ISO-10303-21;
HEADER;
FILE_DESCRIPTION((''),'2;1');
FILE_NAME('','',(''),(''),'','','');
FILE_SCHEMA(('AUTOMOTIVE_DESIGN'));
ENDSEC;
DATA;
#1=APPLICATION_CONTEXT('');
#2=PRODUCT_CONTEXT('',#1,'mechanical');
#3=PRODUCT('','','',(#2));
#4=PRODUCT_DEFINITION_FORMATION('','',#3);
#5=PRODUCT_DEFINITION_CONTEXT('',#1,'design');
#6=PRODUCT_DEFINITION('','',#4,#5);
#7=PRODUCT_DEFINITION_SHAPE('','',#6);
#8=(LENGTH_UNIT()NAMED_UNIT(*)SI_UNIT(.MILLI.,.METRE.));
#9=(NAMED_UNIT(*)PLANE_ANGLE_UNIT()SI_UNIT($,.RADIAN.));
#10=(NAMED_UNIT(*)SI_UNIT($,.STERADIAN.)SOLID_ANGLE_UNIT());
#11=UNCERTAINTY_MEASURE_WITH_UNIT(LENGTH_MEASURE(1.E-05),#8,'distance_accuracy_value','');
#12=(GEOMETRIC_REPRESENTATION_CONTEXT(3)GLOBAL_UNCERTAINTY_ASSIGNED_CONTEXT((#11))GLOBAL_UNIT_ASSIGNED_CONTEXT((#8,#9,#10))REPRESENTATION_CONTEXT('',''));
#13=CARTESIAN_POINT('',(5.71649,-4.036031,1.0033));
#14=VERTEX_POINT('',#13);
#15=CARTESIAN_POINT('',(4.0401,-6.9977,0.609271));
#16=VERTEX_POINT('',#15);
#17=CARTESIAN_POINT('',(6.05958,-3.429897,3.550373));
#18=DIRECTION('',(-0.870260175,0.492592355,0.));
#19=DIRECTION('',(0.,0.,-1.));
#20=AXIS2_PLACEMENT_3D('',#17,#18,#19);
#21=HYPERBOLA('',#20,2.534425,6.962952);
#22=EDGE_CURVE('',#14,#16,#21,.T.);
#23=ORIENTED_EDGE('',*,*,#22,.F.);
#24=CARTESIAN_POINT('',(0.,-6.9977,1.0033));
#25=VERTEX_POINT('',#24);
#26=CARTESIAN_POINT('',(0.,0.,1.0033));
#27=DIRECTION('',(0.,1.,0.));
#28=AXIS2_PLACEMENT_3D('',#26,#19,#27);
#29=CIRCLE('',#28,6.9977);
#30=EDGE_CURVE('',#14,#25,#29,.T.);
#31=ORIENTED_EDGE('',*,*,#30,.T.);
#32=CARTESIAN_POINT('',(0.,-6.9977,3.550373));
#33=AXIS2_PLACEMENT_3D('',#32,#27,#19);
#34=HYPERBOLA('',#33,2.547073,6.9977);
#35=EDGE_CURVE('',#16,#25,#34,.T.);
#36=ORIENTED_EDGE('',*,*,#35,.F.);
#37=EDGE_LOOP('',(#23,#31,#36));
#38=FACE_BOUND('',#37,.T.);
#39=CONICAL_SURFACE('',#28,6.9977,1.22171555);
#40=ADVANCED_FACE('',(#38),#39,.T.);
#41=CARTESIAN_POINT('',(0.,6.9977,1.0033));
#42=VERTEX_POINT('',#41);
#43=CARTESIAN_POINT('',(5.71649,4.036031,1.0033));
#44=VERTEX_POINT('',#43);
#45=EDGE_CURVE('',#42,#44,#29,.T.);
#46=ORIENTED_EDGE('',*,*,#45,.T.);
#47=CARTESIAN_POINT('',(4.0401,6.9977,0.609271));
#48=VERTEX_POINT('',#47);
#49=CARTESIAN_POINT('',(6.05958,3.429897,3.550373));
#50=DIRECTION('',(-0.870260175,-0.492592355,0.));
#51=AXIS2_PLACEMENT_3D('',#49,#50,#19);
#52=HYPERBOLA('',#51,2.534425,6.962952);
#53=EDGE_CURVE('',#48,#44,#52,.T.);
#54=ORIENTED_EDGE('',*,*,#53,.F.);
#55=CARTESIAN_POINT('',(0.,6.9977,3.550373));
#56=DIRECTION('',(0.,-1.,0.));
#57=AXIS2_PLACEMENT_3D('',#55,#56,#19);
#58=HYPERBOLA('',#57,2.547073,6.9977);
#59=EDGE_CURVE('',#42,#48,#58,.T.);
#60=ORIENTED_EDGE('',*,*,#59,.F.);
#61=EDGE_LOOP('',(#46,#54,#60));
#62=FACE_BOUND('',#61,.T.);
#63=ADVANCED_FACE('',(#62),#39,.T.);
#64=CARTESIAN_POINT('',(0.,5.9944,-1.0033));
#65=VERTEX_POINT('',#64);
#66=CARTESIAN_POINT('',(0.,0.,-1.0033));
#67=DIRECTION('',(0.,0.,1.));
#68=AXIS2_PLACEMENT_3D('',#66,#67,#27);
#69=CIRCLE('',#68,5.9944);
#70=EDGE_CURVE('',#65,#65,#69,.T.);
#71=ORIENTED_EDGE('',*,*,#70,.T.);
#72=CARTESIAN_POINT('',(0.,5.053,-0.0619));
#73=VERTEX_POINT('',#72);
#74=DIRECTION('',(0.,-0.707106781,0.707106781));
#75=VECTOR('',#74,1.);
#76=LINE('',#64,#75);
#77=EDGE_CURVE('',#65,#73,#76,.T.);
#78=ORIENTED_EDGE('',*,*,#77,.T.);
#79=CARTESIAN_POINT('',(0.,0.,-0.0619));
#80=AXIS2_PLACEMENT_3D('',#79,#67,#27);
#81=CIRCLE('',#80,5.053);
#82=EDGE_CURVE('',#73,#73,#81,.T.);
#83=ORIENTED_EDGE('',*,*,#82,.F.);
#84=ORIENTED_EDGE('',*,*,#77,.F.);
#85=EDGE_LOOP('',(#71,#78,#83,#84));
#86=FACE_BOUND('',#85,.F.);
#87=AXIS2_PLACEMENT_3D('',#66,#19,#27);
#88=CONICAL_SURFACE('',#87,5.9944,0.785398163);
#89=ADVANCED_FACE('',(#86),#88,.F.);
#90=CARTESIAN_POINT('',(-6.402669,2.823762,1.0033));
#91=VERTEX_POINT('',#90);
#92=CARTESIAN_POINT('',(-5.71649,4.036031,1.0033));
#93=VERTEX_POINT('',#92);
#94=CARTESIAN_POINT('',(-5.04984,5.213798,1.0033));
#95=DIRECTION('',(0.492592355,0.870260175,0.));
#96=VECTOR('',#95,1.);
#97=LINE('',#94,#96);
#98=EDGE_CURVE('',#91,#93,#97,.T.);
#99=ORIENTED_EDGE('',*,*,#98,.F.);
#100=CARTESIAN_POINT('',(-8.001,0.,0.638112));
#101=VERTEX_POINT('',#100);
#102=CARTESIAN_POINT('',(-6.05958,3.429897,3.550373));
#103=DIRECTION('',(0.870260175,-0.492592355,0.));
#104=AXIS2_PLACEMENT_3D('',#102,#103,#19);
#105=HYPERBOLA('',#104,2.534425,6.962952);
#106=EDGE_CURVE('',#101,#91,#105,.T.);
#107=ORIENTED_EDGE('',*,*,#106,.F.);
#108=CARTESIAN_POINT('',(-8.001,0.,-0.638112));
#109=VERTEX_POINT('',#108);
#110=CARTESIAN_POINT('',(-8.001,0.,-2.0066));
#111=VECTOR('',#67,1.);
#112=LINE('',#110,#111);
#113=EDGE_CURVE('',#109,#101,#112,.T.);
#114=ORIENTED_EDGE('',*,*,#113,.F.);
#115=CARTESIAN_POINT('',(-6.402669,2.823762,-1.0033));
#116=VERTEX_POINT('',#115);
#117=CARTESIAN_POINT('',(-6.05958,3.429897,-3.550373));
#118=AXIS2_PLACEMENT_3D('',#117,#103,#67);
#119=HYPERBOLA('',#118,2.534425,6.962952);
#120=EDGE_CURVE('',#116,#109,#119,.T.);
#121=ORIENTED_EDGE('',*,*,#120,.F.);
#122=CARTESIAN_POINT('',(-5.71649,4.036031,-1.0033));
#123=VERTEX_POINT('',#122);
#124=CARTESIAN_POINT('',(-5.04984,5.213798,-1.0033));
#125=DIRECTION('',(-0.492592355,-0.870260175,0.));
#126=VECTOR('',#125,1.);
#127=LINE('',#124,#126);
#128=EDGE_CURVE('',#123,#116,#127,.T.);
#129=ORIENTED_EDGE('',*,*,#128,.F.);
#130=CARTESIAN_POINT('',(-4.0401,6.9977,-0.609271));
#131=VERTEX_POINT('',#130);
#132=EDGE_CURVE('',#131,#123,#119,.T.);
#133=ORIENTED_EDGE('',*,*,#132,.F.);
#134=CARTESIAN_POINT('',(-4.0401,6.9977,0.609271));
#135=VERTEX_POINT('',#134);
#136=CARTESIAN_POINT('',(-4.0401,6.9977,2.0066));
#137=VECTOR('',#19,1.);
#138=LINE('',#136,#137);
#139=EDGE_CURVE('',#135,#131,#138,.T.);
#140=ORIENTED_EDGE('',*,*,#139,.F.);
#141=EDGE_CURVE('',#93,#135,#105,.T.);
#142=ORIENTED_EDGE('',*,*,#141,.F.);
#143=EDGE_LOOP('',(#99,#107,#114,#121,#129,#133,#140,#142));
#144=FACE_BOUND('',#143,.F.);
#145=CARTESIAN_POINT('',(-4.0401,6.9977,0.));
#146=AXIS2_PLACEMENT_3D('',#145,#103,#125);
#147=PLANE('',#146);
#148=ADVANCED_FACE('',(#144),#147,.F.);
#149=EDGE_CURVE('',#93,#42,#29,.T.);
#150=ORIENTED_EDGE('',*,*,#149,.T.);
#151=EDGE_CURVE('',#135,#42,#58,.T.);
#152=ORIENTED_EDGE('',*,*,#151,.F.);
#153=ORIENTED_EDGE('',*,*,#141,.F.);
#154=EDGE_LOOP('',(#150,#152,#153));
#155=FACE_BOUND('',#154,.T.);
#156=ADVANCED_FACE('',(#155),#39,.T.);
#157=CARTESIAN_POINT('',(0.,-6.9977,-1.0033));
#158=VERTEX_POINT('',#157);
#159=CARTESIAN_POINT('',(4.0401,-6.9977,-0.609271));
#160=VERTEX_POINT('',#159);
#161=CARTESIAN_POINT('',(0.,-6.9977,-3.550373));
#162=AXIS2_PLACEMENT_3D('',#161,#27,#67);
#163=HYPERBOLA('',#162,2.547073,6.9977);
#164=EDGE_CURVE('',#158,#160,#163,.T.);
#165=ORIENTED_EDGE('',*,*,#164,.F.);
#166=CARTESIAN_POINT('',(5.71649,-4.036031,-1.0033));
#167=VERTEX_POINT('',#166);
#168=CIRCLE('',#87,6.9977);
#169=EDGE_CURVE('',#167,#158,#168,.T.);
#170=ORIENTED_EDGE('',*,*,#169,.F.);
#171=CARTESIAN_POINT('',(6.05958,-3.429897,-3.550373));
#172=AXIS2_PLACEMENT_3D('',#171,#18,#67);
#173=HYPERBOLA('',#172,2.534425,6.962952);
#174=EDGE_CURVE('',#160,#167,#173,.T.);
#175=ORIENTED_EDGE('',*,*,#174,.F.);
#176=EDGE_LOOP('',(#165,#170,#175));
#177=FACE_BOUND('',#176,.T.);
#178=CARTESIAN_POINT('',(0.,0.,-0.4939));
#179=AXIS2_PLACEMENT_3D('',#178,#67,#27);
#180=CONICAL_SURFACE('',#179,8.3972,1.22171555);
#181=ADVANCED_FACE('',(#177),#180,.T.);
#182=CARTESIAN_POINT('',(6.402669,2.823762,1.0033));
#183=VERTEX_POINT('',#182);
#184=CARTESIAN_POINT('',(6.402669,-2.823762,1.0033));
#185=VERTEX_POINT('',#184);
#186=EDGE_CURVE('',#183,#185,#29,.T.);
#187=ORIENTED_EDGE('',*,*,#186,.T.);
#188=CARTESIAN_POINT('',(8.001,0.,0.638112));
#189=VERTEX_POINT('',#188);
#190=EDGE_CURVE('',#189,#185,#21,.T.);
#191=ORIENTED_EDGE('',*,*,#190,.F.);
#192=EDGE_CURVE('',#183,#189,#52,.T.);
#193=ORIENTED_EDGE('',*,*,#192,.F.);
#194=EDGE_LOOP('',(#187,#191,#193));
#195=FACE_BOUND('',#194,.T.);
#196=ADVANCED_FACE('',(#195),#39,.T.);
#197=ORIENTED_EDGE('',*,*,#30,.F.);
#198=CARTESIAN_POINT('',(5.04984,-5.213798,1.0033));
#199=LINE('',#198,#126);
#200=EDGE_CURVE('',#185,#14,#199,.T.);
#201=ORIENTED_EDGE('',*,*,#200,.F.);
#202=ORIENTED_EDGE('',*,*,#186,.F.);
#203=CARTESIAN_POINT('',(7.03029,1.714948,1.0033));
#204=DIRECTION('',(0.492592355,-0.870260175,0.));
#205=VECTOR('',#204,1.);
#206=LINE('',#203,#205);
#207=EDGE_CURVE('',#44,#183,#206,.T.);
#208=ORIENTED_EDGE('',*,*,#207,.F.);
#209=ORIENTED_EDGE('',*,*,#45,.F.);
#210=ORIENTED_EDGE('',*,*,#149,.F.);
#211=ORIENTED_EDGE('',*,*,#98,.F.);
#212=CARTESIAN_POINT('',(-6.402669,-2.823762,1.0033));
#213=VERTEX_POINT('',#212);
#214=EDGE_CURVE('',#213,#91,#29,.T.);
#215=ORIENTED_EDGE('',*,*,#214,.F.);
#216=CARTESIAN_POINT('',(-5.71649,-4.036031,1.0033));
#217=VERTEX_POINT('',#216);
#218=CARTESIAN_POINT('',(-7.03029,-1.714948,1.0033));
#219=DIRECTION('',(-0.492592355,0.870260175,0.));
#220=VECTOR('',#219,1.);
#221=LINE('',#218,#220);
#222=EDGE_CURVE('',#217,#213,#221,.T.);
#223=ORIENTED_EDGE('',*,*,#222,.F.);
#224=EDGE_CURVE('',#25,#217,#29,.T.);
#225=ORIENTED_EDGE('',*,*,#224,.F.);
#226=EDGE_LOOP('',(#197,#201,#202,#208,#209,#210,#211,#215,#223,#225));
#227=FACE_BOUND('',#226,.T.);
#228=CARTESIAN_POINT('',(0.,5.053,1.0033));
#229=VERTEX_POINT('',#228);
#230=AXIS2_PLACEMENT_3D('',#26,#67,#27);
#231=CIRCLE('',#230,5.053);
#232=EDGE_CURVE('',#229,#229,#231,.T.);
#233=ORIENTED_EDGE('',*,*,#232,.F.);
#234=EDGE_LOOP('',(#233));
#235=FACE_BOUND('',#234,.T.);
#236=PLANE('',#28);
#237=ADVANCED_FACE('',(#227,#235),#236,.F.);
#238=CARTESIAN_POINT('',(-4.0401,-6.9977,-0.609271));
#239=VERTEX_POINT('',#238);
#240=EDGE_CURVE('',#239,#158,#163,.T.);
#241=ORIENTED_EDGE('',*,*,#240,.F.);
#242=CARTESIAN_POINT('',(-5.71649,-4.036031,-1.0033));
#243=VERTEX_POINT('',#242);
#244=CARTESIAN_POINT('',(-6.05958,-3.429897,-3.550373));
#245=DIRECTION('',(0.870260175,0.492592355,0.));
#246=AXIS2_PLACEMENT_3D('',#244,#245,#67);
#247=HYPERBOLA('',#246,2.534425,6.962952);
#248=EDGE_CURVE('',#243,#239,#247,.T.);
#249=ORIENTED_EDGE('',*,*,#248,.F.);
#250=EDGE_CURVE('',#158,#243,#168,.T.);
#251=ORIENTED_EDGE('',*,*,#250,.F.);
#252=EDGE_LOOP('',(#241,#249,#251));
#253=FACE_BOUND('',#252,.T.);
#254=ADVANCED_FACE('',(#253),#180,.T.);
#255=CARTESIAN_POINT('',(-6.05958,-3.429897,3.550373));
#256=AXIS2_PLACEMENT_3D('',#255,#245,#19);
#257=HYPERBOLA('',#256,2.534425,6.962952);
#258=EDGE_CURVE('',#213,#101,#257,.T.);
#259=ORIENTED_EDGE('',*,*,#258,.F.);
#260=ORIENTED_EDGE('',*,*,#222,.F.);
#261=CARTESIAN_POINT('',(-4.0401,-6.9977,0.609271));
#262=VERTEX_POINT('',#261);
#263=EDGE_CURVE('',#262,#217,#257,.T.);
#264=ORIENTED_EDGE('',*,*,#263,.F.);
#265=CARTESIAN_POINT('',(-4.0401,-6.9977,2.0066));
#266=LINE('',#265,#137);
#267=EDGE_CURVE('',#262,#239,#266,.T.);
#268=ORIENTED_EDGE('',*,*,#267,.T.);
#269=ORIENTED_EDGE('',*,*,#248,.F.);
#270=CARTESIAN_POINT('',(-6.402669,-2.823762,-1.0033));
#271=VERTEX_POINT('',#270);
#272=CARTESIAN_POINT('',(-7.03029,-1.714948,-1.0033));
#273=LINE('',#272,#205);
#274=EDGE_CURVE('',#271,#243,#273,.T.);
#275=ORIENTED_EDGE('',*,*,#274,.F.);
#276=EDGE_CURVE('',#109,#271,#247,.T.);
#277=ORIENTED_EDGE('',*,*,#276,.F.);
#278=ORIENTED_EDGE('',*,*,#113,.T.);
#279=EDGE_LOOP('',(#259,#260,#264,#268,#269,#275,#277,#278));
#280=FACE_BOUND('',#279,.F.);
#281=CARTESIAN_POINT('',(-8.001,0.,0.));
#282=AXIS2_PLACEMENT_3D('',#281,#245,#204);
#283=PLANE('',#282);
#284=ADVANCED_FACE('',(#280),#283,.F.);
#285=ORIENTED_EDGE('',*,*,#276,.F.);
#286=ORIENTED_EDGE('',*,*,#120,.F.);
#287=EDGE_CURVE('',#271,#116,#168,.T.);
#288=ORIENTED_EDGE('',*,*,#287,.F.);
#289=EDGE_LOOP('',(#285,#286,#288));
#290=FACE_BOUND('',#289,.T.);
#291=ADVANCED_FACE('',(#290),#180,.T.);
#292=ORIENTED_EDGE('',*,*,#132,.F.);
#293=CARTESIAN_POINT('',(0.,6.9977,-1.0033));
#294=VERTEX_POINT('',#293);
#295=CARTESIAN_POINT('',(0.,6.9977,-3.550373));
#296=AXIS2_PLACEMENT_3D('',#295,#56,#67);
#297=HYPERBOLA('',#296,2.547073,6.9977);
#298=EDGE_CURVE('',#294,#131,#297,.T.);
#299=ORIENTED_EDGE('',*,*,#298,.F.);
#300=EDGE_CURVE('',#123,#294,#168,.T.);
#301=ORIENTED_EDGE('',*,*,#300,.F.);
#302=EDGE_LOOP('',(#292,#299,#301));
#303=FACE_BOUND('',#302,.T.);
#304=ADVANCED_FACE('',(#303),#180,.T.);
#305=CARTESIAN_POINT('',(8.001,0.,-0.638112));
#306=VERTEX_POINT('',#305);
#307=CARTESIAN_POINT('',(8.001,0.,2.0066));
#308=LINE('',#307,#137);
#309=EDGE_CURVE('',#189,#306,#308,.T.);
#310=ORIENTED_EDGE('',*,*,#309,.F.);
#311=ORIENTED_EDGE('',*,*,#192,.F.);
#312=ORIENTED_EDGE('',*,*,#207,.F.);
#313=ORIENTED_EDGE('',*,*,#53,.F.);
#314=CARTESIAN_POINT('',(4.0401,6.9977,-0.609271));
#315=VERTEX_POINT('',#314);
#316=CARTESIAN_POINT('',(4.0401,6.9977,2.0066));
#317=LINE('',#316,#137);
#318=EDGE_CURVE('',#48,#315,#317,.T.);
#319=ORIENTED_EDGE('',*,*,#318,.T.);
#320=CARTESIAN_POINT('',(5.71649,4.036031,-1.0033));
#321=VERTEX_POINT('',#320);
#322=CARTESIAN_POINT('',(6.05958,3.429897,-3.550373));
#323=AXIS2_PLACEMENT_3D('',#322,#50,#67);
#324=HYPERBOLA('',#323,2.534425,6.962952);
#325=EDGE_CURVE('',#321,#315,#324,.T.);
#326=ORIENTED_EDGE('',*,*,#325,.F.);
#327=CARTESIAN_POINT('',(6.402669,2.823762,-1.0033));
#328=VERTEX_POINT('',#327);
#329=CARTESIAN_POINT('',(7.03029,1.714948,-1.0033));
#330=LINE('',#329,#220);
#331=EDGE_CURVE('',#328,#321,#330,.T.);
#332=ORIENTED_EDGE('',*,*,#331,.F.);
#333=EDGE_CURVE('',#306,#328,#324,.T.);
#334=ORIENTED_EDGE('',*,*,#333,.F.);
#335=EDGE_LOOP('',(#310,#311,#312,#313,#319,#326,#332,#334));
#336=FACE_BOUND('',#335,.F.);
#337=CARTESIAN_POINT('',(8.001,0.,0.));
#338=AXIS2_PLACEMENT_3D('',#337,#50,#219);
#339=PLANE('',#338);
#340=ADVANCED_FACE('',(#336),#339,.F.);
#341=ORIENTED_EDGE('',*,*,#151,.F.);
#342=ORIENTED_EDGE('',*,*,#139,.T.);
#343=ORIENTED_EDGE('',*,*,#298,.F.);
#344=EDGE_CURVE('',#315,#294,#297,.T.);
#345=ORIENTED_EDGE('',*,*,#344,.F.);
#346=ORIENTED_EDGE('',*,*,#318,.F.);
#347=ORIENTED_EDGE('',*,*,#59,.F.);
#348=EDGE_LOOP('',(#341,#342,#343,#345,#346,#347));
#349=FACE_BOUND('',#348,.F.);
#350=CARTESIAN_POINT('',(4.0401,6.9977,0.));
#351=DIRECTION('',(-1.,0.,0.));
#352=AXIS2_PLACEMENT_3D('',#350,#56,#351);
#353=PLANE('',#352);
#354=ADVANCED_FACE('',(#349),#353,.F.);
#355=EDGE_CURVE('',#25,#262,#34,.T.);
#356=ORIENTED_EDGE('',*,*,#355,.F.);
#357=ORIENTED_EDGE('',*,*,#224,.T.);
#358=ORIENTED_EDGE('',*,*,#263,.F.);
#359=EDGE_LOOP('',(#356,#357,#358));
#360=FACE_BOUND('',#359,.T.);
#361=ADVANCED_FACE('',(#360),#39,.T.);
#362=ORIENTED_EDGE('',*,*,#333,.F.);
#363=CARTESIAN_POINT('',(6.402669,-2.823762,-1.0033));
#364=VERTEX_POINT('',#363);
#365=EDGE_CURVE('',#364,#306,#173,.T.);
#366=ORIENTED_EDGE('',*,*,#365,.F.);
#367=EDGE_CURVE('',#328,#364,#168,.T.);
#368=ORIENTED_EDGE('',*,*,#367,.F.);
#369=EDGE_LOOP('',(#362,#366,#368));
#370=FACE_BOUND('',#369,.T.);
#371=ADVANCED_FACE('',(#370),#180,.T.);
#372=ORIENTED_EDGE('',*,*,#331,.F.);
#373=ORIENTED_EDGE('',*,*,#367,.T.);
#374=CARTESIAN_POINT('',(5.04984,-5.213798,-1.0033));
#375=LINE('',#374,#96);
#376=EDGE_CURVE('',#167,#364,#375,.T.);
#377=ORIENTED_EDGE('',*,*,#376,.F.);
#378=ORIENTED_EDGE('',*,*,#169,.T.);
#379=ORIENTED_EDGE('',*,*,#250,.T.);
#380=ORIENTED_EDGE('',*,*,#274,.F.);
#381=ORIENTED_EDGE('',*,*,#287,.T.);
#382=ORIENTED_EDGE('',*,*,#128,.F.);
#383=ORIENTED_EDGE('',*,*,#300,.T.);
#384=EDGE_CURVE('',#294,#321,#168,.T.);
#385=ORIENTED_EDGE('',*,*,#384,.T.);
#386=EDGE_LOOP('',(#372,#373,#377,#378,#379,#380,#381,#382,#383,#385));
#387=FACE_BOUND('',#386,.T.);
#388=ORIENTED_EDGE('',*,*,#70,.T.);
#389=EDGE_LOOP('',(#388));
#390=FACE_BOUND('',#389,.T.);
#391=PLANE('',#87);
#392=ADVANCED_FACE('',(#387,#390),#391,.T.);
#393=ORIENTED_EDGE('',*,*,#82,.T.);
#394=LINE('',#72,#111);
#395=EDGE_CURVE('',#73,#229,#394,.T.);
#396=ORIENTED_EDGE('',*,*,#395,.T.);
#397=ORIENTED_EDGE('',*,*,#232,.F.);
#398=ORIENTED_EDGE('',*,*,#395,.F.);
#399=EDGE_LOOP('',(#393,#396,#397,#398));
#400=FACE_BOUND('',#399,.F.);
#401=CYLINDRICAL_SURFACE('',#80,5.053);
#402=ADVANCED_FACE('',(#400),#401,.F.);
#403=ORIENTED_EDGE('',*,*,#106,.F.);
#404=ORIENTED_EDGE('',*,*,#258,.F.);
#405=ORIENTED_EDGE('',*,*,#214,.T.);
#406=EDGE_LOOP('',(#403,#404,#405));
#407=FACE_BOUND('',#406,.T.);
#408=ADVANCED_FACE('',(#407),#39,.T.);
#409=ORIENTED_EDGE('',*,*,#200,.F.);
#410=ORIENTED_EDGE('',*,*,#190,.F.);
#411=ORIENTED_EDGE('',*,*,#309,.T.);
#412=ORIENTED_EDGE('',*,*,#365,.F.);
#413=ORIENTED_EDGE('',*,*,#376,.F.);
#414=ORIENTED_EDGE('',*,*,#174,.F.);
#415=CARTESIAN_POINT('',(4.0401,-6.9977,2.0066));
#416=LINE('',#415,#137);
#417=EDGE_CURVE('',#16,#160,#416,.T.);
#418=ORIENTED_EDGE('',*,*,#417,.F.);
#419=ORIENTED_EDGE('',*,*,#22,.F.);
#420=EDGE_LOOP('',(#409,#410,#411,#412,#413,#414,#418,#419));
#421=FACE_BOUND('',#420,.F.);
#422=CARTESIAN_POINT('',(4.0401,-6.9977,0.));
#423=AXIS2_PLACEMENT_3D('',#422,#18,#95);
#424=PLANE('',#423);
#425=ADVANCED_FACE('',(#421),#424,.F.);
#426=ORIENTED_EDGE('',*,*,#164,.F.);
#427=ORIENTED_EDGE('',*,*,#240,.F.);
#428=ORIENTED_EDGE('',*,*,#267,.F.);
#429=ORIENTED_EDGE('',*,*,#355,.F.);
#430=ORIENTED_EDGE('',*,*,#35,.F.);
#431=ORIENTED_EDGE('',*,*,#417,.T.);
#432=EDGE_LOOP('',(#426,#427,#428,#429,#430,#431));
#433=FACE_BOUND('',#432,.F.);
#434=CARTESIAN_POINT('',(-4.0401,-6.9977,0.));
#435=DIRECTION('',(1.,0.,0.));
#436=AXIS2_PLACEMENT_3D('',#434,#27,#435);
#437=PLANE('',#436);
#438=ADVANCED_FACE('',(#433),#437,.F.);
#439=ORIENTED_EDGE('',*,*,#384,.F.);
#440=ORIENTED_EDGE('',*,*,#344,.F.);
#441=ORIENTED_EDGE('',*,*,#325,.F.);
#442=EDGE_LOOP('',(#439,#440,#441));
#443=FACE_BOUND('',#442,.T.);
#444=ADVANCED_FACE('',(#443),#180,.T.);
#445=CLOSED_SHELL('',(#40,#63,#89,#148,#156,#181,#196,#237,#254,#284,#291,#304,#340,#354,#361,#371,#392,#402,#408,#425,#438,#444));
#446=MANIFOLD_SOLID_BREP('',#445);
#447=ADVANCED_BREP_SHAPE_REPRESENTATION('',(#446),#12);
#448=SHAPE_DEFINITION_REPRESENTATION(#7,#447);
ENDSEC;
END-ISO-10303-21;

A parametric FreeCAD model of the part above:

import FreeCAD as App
import Part
import Sketcher
Q = App.Units.Quantity


def add_polygon(sketch, points):
    """Adds a closed chain of lines whose ends are joined by coincident constraints."""
    first, n = sketch.GeometryCount, len(points)
    for a, b in zip(points, points[1:] + points[:1]):
        sketch.addGeometry(Part.LineSegment(App.Vector(*a, 0), App.Vector(*b, 0)), False)
    for i in range(n):
        sketch.addConstraint(Sketcher.Constraint("Coincident", first + i, 2, first + (i + 1) % n, 1))

doc = App.newDocument("Part")
body = doc.addObject("PartDesign::Body", "Body")

# Sketch on YZ plane
sketch1 = body.newObject("Sketcher::SketchObject", "Sketch")
sketch1.AttachmentSupport = (doc.getObject("YZ_Plane"), [""])
sketch1.MapMode = "FlatFace"
add_polygon(sketch1, [(0, 1), (0, -1), (7, -1), (8.4, -0.5), (8.4, 0.5), (7, 1)])  # lines 0-5
sketch1.addConstraint([
    Sketcher.Constraint("Vertical", 0),
    Sketcher.Constraint("Horizontal", 1),
    Sketcher.Constraint("Vertical", 3),
    Sketcher.Constraint("Horizontal", 5),
    Sketcher.Constraint("Symmetric", 0, 2, 5, 2, -1, 1),
    Sketcher.Constraint("Vertical", 1, 2, 4, 2),
    Sketcher.Constraint("Equal", 2, 4),
    Sketcher.Constraint("Angle", 2, Q("20.0009 deg")),
    Sketcher.Constraint("DistanceY", 0, 2, 0, 1, Q("0.079 in")),
    Sketcher.Constraint("DistanceX", 1, 1, 1, 2, Q("0.2755 in")),
    Sketcher.Constraint("DistanceY", 3, 1, 3, 2, Q("0.0389 in")),
])
revolution = body.newObject("PartDesign::Revolution", "Revolution")
revolution.Profile = sketch1
revolution.ReferenceAxis = (sketch1, ["V_Axis"])
revolution.Angle = 360

# Sketch on XY plane
sketch2 = body.newObject("Sketcher::SketchObject", "Sketch001")
sketch2.AttachmentSupport = (doc.getObject("XY_Plane"), [""])
sketch2.MapMode = "FlatFace"
add_polygon(sketch2, [(14, 14), (-14, 14), (-14, -14), (14, -14)])  # lines 0-3
add_polygon(sketch2, [(-4, -7), (-8, 0), (-4, 7), (4, 7), (8, 0), (4, -7)])  # lines 4-9
sketch2.addConstraint([
    Sketcher.Constraint("Horizontal", 0),
    Sketcher.Constraint("Vertical", 1),
    Sketcher.Constraint("Horizontal", 2),
    Sketcher.Constraint("Vertical", 3),
    Sketcher.Constraint("Horizontal", 6),
    Sketcher.Constraint("Horizontal", 9),
    Sketcher.Constraint("Symmetric", 0, 2, 2, 2, -1, 1),
    Sketcher.Constraint("Symmetric", 4, 2, 7, 2, -1, 1),
    Sketcher.Constraint("Symmetric", 5, 2, 8, 2, -1, 1),
    Sketcher.Constraint("PointOnObject", 4, 2, -1),
    Sketcher.Constraint("Parallel", 4, 7),
    Sketcher.Constraint("Vertical", 6, 2, 8, 2),
    Sketcher.Constraint("Equal", 2, 1),
    Sketcher.Constraint("DistanceX", 0, 2, 0, 1, Q("1.102 in")),
    Sketcher.Constraint("Angle", 4, Q("119.511 deg")),
    Sketcher.Constraint("DistanceX", 4, 2, 7, 2, Q("0.63 in")),
    Sketcher.Constraint("DistanceY", 8, 2, 6, 2, Q("0.551 in")),
])
pocket1 = body.newObject("PartDesign::Pocket", "Pocket")
pocket1.Profile = sketch2
pocket1.Length = Q("0.158 in")
pocket1.Midplane = True

# Sketch on XY plane
sketch3 = body.newObject("Sketcher::SketchObject", "Sketch002")
sketch3.AttachmentSupport = (doc.getObject("XY_Plane"), [""])
sketch3.MapMode = "FlatFace"
sketch3.AttachmentOffset = App.Placement(App.Vector(0, 0, -0.0395 * 25.4), App.Rotation())
sketch3.addGeometry(Part.Circle(App.Vector(0, 0, 0), App.Vector(0, 0, 1), 5), False)
sketch3.addConstraint([
    Sketcher.Constraint("Coincident", 0, 3, -1, 1),
    Sketcher.Constraint("Diameter", 0, 10.106),
])
doc.recompute()
hole = body.newObject("PartDesign::Hole", "Hole")
hole.Profile = sketch3
hole.ThreadType = "None"
hole.Diameter = 10.106
hole.DepthType = "Dimension"
hole.Depth = Q("0.079 in")
hole.DrillPoint = "Flat"
hole.HoleCutType = "Countersink"
hole.HoleCutDiameter = Q("0.472 in")
hole.HoleCutCountersinkAngle = 90
hole.Reversed = True

doc.recompute()
